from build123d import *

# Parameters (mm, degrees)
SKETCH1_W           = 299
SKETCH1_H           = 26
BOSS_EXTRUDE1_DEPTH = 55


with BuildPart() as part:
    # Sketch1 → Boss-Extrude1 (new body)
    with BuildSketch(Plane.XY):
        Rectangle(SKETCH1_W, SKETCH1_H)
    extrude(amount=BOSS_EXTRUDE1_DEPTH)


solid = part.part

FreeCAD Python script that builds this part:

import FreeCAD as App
import Part
import Sketcher
from FreeCAD import Vector


def add_polygon(sketch, points):
    """Adds a closed chain of lines whose ends are joined by coincident constraints."""
    first, n = sketch.GeometryCount, len(points)
    for a, b in zip(points, points[1:] + points[:1]):
        sketch.addGeometry(Part.LineSegment(App.Vector(*a, 0), App.Vector(*b, 0)), False)
    for i in range(n):
        sketch.addConstraint(Sketcher.Constraint("Coincident", first + i, 2, first + (i + 1) % n, 1))

doc = App.newDocument("Part")
body = doc.addObject("PartDesign::Body", "Body")

# Sketch on XY plane
sketch1 = doc.addObject("Sketcher::SketchObject", "Sketch")
body.addObject(sketch1)
sketch1.AttachmentSupport = (doc.XY_Plane, [""])
sketch1.MapMode = "FlatFace"
add_polygon(sketch1, [(-150, 13), (-150, -13), (150, -13), (150, 13)])  # lines 0-3
sketch1.addConstraint(Sketcher.Constraint("Vertical", 0))
sketch1.addConstraint(Sketcher.Constraint("Horizontal", 1))
sketch1.addConstraint(Sketcher.Constraint("Vertical", 2))
sketch1.addConstraint(Sketcher.Constraint("Horizontal", 3))
sketch1.addConstraint(Sketcher.Constraint("Symmetric", 0, 2, 2, 2, -1, 1))
sketch1.addConstraint(Sketcher.Constraint("DistanceX", 1, 1, 1, 2, 299.0))
sketch1.addConstraint(Sketcher.Constraint("DistanceY", 0, 2, 0, 1, 26.0))
pad1 = doc.addObject("PartDesign::Pad", "Pad")
body.addObject(pad1)
pad1.Profile = sketch1
pad1.Length = 55

doc.recompute()
